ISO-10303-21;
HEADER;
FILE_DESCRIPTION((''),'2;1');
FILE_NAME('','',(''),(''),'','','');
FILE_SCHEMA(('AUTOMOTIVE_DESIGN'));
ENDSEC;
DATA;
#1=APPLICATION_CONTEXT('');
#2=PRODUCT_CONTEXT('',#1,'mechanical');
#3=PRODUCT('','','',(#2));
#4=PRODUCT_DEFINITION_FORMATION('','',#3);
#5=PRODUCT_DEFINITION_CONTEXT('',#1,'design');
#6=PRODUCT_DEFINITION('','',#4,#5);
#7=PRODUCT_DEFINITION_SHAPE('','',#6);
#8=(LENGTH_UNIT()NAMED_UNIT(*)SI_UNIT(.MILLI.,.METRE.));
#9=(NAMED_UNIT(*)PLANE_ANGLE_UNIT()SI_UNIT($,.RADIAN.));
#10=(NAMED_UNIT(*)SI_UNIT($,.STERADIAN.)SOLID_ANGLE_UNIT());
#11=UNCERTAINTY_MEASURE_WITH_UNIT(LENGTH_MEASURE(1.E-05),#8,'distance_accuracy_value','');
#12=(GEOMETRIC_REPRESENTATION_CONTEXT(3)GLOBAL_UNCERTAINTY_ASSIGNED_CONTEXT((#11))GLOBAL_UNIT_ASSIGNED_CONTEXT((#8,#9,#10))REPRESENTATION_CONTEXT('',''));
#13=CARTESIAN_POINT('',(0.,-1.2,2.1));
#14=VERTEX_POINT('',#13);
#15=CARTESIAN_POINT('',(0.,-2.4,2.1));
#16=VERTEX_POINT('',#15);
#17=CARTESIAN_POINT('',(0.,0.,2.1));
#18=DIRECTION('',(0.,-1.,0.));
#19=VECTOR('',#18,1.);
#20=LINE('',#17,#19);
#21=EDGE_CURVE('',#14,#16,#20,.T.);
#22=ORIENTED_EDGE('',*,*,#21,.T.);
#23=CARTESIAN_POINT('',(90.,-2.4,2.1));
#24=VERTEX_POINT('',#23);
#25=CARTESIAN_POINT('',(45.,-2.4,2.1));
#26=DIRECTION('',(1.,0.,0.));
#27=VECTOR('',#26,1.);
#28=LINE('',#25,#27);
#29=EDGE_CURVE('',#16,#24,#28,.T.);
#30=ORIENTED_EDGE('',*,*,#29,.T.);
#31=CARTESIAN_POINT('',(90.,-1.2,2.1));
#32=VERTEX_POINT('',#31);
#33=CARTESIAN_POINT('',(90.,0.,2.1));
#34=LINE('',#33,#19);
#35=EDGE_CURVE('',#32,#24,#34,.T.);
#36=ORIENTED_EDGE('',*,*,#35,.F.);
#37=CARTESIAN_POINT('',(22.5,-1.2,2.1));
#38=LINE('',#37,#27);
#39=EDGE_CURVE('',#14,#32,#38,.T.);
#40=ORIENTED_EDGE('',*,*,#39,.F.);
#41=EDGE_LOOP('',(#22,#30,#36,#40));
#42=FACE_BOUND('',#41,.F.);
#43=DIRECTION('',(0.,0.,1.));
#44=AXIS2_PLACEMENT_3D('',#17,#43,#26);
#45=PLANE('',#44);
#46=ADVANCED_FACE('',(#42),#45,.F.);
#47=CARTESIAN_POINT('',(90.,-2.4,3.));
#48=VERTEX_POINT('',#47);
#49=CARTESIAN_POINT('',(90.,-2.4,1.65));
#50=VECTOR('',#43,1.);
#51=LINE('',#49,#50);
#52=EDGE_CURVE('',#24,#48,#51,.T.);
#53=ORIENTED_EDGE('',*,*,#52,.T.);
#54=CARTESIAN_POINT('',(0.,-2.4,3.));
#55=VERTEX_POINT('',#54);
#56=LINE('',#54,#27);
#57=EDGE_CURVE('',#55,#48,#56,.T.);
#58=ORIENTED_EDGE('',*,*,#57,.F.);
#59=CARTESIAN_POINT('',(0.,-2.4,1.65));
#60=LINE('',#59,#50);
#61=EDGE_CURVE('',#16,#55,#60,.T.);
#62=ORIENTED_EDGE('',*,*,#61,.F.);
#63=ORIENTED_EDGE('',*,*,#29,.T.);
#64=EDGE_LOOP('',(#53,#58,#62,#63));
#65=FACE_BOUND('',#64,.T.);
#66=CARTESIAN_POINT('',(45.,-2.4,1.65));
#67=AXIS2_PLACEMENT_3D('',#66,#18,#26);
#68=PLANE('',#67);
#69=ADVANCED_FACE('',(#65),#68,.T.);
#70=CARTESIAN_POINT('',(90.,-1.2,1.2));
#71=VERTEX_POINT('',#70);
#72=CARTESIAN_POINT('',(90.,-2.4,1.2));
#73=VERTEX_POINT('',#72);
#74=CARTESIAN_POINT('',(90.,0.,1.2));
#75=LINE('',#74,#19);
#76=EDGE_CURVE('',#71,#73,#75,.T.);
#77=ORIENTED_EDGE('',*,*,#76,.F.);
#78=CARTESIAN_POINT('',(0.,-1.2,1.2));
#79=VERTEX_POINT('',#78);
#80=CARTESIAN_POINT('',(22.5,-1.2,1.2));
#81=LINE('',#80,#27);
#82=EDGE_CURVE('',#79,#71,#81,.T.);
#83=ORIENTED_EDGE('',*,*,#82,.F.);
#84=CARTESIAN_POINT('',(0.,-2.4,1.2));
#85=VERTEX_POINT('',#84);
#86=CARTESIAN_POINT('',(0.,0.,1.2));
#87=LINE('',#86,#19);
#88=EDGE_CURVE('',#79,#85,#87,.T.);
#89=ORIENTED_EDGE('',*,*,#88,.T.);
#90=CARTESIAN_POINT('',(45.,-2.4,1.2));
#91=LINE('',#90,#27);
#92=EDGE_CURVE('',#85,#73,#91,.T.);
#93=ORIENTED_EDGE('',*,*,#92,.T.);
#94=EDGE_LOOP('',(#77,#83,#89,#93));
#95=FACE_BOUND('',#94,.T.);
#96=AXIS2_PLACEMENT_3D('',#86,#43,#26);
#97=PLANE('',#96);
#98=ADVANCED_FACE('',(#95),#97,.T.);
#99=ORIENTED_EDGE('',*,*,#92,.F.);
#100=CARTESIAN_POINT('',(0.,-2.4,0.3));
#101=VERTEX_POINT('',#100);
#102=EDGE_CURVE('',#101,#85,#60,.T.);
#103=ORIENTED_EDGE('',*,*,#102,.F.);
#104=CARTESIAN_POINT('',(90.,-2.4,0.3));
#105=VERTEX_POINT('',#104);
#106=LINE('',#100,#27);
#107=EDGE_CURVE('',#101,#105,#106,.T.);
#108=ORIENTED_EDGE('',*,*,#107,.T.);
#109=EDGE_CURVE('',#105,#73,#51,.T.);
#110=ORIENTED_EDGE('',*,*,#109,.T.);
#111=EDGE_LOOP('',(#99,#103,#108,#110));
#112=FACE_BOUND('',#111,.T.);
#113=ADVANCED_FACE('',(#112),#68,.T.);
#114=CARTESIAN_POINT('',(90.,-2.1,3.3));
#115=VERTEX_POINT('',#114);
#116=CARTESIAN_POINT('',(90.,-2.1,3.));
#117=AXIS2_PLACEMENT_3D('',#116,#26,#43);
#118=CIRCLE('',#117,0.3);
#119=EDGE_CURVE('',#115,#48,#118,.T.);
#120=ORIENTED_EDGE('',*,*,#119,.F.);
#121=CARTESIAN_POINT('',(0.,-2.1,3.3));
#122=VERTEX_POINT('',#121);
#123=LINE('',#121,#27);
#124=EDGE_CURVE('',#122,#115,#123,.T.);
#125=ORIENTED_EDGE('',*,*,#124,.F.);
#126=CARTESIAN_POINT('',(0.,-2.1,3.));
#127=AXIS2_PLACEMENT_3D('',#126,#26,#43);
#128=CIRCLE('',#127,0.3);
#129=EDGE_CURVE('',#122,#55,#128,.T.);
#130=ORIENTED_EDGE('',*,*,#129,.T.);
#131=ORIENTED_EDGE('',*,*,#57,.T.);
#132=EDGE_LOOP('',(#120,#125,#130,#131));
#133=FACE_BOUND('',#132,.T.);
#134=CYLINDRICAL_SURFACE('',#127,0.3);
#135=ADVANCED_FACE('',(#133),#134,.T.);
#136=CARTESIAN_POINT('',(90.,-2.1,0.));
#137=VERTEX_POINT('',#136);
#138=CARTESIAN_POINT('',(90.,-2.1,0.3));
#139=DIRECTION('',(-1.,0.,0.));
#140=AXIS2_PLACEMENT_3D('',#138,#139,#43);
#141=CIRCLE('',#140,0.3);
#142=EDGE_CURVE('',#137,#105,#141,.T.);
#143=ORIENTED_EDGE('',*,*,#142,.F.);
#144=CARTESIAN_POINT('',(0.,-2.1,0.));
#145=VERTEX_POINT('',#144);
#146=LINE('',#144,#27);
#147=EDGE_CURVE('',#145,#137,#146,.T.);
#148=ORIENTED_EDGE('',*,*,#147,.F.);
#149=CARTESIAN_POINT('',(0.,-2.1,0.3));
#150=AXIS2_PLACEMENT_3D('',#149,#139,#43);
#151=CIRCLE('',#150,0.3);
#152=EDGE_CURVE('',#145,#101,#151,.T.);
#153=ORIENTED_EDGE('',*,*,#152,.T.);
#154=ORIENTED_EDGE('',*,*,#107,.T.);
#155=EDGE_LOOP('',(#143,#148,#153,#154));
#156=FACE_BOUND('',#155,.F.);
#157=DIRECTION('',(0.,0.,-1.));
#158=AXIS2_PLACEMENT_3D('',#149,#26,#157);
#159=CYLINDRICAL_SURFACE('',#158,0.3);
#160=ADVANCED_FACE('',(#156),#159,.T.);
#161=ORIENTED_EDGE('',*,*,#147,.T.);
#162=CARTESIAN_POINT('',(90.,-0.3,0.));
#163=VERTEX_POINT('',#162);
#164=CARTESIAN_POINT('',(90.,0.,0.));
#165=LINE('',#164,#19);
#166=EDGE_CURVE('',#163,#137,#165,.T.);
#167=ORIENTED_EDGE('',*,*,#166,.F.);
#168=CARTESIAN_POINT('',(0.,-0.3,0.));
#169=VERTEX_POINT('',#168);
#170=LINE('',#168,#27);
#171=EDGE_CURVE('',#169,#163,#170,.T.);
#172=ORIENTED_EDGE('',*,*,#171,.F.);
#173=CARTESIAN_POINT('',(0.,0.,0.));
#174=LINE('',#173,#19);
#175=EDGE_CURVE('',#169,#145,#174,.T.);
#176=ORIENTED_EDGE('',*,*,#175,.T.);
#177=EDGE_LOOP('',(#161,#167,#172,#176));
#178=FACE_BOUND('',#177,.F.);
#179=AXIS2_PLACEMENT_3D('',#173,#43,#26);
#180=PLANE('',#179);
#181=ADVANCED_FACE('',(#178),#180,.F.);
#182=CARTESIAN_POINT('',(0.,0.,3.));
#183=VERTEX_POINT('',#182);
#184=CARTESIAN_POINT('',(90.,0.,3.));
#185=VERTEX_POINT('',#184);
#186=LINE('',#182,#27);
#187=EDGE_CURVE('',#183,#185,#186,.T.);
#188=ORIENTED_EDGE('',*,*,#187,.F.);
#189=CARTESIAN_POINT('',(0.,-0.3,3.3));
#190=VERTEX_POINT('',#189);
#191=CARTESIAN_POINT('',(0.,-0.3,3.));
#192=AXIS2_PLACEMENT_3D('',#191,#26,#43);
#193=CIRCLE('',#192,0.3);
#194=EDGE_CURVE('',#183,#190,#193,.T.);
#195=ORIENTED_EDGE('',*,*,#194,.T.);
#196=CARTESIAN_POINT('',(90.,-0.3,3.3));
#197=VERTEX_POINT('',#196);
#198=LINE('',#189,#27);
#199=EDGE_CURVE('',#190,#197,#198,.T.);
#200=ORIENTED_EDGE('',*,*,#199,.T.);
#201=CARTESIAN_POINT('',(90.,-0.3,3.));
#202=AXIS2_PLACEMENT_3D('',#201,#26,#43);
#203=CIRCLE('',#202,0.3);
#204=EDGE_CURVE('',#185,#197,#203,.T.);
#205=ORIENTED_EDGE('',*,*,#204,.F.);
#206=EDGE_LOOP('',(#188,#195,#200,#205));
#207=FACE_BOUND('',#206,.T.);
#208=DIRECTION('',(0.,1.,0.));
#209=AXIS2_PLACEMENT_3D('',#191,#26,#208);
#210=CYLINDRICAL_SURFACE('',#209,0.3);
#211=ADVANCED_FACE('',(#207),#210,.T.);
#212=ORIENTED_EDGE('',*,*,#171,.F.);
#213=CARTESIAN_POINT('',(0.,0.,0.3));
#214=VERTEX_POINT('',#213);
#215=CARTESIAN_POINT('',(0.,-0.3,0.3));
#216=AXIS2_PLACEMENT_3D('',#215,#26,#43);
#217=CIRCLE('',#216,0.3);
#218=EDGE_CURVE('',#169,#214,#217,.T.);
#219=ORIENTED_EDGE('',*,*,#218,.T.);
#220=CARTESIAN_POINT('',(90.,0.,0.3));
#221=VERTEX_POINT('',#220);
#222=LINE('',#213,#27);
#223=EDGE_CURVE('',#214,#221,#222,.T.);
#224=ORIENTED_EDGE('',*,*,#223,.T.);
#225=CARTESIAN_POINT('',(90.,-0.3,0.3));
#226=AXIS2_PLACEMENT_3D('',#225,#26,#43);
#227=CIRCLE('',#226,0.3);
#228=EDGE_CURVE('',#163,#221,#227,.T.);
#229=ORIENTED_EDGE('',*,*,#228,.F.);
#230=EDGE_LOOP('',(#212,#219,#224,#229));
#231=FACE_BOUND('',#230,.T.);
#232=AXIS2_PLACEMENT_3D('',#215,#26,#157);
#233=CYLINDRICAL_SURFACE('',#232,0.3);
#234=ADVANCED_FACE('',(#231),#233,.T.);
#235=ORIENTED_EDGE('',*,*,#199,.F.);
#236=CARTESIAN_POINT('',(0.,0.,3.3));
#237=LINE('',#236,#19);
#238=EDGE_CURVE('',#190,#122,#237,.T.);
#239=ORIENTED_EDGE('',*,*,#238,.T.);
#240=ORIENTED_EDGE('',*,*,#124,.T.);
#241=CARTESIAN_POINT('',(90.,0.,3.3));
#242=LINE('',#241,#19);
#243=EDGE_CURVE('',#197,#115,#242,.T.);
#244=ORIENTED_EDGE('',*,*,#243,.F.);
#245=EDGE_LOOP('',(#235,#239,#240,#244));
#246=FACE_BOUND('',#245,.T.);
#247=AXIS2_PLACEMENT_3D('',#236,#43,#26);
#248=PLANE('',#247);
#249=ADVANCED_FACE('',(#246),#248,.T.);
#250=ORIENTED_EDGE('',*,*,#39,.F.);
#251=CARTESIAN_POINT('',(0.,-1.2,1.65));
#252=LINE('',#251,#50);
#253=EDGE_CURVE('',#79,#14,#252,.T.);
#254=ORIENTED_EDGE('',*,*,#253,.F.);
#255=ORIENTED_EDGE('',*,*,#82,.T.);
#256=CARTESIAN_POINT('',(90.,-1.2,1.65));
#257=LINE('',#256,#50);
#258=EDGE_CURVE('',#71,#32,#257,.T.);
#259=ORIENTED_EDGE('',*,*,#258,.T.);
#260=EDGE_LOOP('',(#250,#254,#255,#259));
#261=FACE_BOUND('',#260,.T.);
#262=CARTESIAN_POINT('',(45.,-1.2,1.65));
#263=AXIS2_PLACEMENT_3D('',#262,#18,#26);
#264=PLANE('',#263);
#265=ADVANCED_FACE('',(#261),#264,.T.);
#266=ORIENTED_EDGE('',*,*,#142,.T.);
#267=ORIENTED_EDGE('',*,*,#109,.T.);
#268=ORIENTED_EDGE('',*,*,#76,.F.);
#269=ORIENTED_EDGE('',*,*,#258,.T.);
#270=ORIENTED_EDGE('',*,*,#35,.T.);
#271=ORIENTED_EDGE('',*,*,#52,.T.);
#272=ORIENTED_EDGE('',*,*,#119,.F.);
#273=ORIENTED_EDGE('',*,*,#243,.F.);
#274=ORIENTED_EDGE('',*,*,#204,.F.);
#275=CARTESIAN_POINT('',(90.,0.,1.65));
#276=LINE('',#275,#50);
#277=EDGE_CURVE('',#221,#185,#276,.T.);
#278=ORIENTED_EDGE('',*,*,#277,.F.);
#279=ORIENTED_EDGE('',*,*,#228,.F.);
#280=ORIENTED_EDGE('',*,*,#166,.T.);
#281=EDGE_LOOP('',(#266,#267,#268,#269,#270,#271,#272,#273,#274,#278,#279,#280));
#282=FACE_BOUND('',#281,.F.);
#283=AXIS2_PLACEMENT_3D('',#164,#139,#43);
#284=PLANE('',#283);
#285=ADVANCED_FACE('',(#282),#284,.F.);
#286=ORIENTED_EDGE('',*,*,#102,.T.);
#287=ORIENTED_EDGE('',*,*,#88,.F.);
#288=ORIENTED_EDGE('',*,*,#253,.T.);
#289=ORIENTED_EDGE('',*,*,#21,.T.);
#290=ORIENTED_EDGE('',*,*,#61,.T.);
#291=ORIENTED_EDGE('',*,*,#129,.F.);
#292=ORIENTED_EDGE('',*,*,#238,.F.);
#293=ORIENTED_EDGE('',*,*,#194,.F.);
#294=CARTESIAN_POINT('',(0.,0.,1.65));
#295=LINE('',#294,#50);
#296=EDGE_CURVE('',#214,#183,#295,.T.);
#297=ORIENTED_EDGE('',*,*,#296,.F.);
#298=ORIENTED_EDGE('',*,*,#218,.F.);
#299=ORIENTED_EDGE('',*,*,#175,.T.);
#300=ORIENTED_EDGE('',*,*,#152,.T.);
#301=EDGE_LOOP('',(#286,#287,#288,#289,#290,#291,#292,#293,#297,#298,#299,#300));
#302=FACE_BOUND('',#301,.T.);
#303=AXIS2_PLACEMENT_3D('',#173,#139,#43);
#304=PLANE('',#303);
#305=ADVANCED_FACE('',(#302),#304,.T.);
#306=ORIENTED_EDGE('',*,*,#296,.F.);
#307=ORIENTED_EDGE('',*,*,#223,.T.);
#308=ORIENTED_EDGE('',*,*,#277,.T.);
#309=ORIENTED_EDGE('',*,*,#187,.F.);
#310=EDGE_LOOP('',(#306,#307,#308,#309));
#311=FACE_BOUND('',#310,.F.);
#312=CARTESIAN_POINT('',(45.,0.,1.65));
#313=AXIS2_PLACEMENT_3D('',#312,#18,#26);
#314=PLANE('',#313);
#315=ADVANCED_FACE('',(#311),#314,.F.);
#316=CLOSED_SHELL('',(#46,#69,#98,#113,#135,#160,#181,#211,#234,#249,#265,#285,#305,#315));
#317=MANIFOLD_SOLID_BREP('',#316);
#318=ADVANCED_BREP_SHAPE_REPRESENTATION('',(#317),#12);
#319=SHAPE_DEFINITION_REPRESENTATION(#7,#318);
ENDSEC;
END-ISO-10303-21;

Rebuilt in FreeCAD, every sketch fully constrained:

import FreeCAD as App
import Part
import Sketcher
from FreeCAD import Vector
Q = App.Units.Quantity


def edges_at(feature, points):
    """Names of the edges that pass closest to the given points."""
    edges = feature.Shape.Edges
    near = lambda p: min(range(len(edges)), key=lambda i: edges[i].distToShape(Part.Vertex(*p))[0])
    return sorted({f"Edge{near(p) + 1}" for p in points})


def faces_at(feature, points):
    """Names of the faces that lie closest to the given points."""
    faces = feature.Shape.Faces
    near = lambda p: min(range(len(faces)), key=lambda i: faces[i].distToShape(Part.Vertex(*p))[0])
    return sorted({f"Face{near(p) + 1}" for p in points})


def add_polygon(sketch, points):
    """Adds a closed chain of lines whose ends are joined by coincident constraints."""
    first, n = sketch.GeometryCount, len(points)
    for a, b in zip(points, points[1:] + points[:1]):
        sketch.addGeometry(Part.LineSegment(App.Vector(*a, 0), App.Vector(*b, 0)), False)
    for i in range(n):
        sketch.addConstraint(Sketcher.Constraint("Coincident", first + i, 2, first + (i + 1) % n, 1))

doc = App.newDocument("Part")
body = doc.addObject("PartDesign::Body", "Body")

sketch1 = body.newObject("Sketcher::SketchObject", "Sketch")
sketch1.AttachmentSupport = (doc.getObject("XZ_Plane"), [""])
sketch1.MapMode = "FlatFace"
add_polygon(sketch1, [(0, 3.3), (0, 0), (90, 0), (90, 3.3)])
sketch1.addConstraint([
    Sketcher.Constraint("Vertical", 0),
    Sketcher.Constraint("Horizontal", 1),
    Sketcher.Constraint("Vertical", 2),
    Sketcher.Constraint("Horizontal", 3),
    Sketcher.Constraint("Coincident", 0, 2, -1, 1),
    Sketcher.Constraint("DistanceX", 1, 1, 1, 2, Q("90 mm")),
    Sketcher.Constraint("DistanceY", 0, 2, 0, 1, Q("3.3 mm")),
])
pad1 = body.newObject("PartDesign::Pad", "Pad")
pad1.Profile = sketch1
pad1.Length = 2.4
doc.recompute()

thickness = body.newObject("PartDesign::Thickness", "Thickness")
thickness.Base = (pad1, faces_at(pad1, [(45, -2.4, 1.65), (90, -1.2, 1.65), (0, -1.2, 1.65)]))
thickness.Value = 1.2
thickness.Reversed = True
thickness.Join = "Arc"
doc.recompute()

fillet = body.newObject("PartDesign::Fillet", "Fillet")
fillet.Base = (thickness, edges_at(thickness, [
    (45, -2.4, 3.3),
    (45, 0, 3.3),
    (45, -2.4, 0),
    (45, 0, 0),
]))
fillet.Radius = 0.3

doc.recompute()
